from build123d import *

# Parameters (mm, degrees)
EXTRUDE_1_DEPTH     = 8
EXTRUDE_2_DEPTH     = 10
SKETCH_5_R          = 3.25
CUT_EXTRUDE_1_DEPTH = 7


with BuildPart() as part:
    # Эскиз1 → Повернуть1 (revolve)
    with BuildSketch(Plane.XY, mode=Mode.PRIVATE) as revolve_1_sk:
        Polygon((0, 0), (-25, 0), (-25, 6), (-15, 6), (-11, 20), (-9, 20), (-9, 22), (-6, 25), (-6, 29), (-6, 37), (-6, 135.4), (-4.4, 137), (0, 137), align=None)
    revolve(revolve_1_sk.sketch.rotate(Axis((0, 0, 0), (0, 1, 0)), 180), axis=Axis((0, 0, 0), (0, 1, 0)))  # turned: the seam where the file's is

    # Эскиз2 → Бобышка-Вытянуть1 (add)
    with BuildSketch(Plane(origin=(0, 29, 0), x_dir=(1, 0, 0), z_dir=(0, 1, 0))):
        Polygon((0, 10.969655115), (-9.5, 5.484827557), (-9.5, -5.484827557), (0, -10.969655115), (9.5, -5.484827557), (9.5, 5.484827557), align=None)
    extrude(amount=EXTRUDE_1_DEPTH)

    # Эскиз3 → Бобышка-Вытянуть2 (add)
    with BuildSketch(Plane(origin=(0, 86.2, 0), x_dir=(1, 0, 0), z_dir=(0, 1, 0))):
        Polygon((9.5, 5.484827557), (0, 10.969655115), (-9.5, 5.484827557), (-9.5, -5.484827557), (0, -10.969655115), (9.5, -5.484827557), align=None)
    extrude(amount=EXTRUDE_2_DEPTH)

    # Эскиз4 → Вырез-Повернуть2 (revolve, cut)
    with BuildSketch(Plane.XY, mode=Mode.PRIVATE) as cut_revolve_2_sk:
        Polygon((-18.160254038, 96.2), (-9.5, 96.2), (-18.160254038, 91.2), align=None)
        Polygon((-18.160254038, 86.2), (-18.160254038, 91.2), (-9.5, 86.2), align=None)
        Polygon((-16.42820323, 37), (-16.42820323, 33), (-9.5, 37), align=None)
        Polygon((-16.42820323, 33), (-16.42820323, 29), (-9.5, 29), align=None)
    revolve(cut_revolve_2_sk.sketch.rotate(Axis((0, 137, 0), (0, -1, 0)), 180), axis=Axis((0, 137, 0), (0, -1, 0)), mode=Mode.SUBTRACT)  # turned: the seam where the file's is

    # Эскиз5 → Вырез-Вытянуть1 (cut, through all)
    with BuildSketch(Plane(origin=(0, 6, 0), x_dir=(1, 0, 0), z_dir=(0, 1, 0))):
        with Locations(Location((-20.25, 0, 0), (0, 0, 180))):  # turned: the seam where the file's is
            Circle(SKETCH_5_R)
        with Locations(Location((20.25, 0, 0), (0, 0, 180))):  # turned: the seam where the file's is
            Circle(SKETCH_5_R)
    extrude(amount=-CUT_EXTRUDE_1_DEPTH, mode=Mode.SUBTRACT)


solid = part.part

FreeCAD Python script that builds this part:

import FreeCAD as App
import Part
import Sketcher
from FreeCAD import Vector
Q = App.Units.Quantity

doc = App.newDocument("Part")
body = doc.addObject("PartDesign::Body", "Body")

# Sketch on XY plane
sketch1 = body.newObject("Sketcher::SketchObject", "Sketch")
sketch1.AttachmentSupport = (doc.getObject("XY_Plane"), [""])
sketch1.MapMode = "FlatFace"
sketch1.addGeometry([
    Part.LineSegment(Vector(-25, 0, 0), Vector(0, 0, 0)),  # 0
    Part.LineSegment(Vector(0, 0, 0), Vector(0, 137, 0)),  # 1
    Part.LineSegment(Vector(0, 137, 0), Vector(-4.4, 137, 0)),  # 2
    Part.LineSegment(Vector(-4.4, 137, 0), Vector(-6, 135.4, 0)),  # 3
    Part.LineSegment(Vector(-6, 135.4, 0), Vector(-6, 25, 0)),  # 4
    Part.LineSegment(Vector(-6, 25, 0), Vector(-9, 22, 0)),  # 5
    Part.LineSegment(Vector(-9, 22, 0), Vector(-9, 20, 0)),  # 6
    Part.LineSegment(Vector(-9, 20, 0), Vector(-11, 20, 0)),  # 7
    Part.LineSegment(Vector(-11, 20, 0), Vector(-15, 6, 0)),  # 8
    Part.LineSegment(Vector(-15, 6, 0), Vector(-25, 6, 0)),  # 9
    Part.LineSegment(Vector(-25, 6, 0), Vector(-25, 0, 0)),  # 10
], False)
sketch1.addConstraint([
    Sketcher.Constraint("Coincident", 0, 2, 1, 1),
    Sketcher.Constraint("Coincident", 1, 2, 2, 1),
    Sketcher.Constraint("Coincident", 2, 2, 3, 1),
    Sketcher.Constraint("Coincident", 3, 2, 4, 1),
    Sketcher.Constraint("Coincident", 4, 2, 5, 1),
    Sketcher.Constraint("Coincident", 5, 2, 6, 1),
    Sketcher.Constraint("Coincident", 6, 2, 7, 1),
    Sketcher.Constraint("Coincident", 7, 2, 8, 1),
    Sketcher.Constraint("Coincident", 8, 2, 9, 1),
    Sketcher.Constraint("Coincident", 9, 2, 10, 1),
    Sketcher.Constraint("Coincident", 10, 2, 0, 1),
    Sketcher.Constraint("Horizontal", 0),
    Sketcher.Constraint("Vertical", 1),
    Sketcher.Constraint("Horizontal", 2),
    Sketcher.Constraint("Vertical", 4),
    Sketcher.Constraint("Vertical", 6),
    Sketcher.Constraint("Horizontal", 7),
    Sketcher.Constraint("Horizontal", 9),
    Sketcher.Constraint("Vertical", 10),
    Sketcher.Constraint("Coincident", 0, 2, -1, 1),
    Sketcher.Constraint("Parallel", 3, 5),
    Sketcher.Constraint("Equal", 7, 6),
    Sketcher.Constraint("DistanceX", 0, 1, 0, 2, Q("25 mm")),
    Sketcher.Constraint("DistanceX", 7, 2, 7, 1, Q("2 mm")),
    Sketcher.Constraint("DistanceX", 9, 2, 9, 1, Q("10 mm")),
    Sketcher.Constraint("DistanceY", 1, 1, 1, 2, Q("137 mm")),
    Sketcher.Constraint("DistanceY", 10, 2, 10, 1, Q("6 mm")),
    Sketcher.Constraint("Angle", 3, Q("-135 deg")),
    Sketcher.Constraint("DistanceX", 2, 2, 2, 1, Q("4.4 mm")),
    Sketcher.Constraint("DistanceY", 4, 2, 4, 1, Q("110.4 mm")),
    Sketcher.Constraint("DistanceX", 3, 2, -1, 1, Q("6 mm")),
    Sketcher.Constraint("DistanceX", 5, 2, -1, 1, Q("9 mm")),
])
revolution = body.newObject("PartDesign::Revolution", "Revolution")
revolution.Profile = sketch1
revolution.ReferenceAxis = (sketch1, ["V_Axis"])
revolution.Angle = 360

# Sketch on XZ plane
sketch2 = body.newObject("Sketcher::SketchObject", "Sketch001")
sketch2.AttachmentSupport = (doc.getObject("XZ_Plane"), [""])
sketch2.MapMode = "FlatFace"
sketch2.AttachmentOffset = App.Placement(Vector(0, 0, -29), App.Rotation())
sketch2.addGeometry([
    Part.LineSegment(Vector(0, -11, 0), Vector(-10, -5, 0)),  # 0
    Part.LineSegment(Vector(-10, -5, 0), Vector(-10, 5, 0)),  # 1
    Part.LineSegment(Vector(-10, 5, 0), Vector(0, 11, 0)),  # 2
    Part.LineSegment(Vector(0, 11, 0), Vector(10, 5, 0)),  # 3
    Part.LineSegment(Vector(10, 5, 0), Vector(10, -5, 0)),  # 4
    Part.LineSegment(Vector(10, -5, 0), Vector(0, -11, 0)),  # 5
], False)
sketch2.addConstraint([
    Sketcher.Constraint("Coincident", 0, 2, 1, 1),
    Sketcher.Constraint("Coincident", 1, 2, 2, 1),
    Sketcher.Constraint("Coincident", 2, 2, 3, 1),
    Sketcher.Constraint("Coincident", 3, 2, 4, 1),
    Sketcher.Constraint("Coincident", 4, 2, 5, 1),
    Sketcher.Constraint("Coincident", 5, 2, 0, 1),
    Sketcher.Constraint("Vertical", 1),
    Sketcher.Constraint("Vertical", 4),
    Sketcher.Constraint("Symmetric", 0, 2, 3, 2, -1, 1),
    Sketcher.Constraint("Symmetric", 2, 2, 5, 2, -1, 1),
    Sketcher.Constraint("PointOnObject", 2, 2, -2),
    Sketcher.Constraint("Parallel", 2, 5),
    Sketcher.Constraint("Horizontal", 1, 2, 3, 2),
    Sketcher.Constraint("Angle", 0, Q("150 deg")),
    Sketcher.Constraint("DistanceX", 1, 2, 3, 2, Q("19 mm")),
    Sketcher.Constraint("DistanceY", 1, 1, 1, 2, Q("10.969655 mm")),
])
pad1 = body.newObject("PartDesign::Pad", "Pad")
pad1.Profile = sketch2
pad1.Length = 8
pad1.Reversed = True

# Sketch on XZ plane
sketch3 = body.newObject("Sketcher::SketchObject", "Sketch002")
sketch3.AttachmentSupport = (doc.getObject("XZ_Plane"), [""])
sketch3.MapMode = "FlatFace"
sketch3.AttachmentOffset = App.Placement(Vector(0, 0, -86.2), App.Rotation())
sketch3.addGeometry([
    Part.LineSegment(Vector(10, -5, 0), Vector(0, -11, 0)),  # 0
    Part.LineSegment(Vector(0, -11, 0), Vector(-10, -5, 0)),  # 1
    Part.LineSegment(Vector(-10, -5, 0), Vector(-10, 5, 0)),  # 2
    Part.LineSegment(Vector(-10, 5, 0), Vector(0, 11, 0)),  # 3
    Part.LineSegment(Vector(0, 11, 0), Vector(10, 5, 0)),  # 4
    Part.LineSegment(Vector(10, 5, 0), Vector(10, -5, 0)),  # 5
], False)
sketch3.addConstraint([
    Sketcher.Constraint("Coincident", 0, 2, 1, 1),
    Sketcher.Constraint("Coincident", 1, 2, 2, 1),
    Sketcher.Constraint("Coincident", 2, 2, 3, 1),
    Sketcher.Constraint("Coincident", 3, 2, 4, 1),
    Sketcher.Constraint("Coincident", 4, 2, 5, 1),
    Sketcher.Constraint("Coincident", 5, 2, 0, 1),
    Sketcher.Constraint("Vertical", 2),
    Sketcher.Constraint("Vertical", 5),
    Sketcher.Constraint("Symmetric", 0, 2, 3, 2, -1, 1),
    Sketcher.Constraint("Symmetric", 1, 2, 4, 2, -1, 1),
    Sketcher.Constraint("PointOnObject", 0, 2, -2),
    Sketcher.Constraint("Parallel", 0, 3),
    Sketcher.Constraint("Horizontal", 2, 2, 4, 2),
    Sketcher.Constraint("Angle", 0, Q("-150 deg")),
    Sketcher.Constraint("DistanceX", 2, 2, 4, 2, Q("19 mm")),
    Sketcher.Constraint("DistanceY", 2, 1, 2, 2, Q("10.969655 mm")),
])
pad2 = body.newObject("PartDesign::Pad", "Pad001")
pad2.Profile = sketch3
pad2.Length = 10
pad2.Reversed = True

# Sketch on XY plane
sketch4 = body.newObject("Sketcher::SketchObject", "Sketch003")
sketch4.AttachmentSupport = (doc.getObject("XY_Plane"), [""])
sketch4.MapMode = "FlatFace"
sketch4.addGeometry([
    Part.LineSegment(Vector(-9.5, 96.2, 0), Vector(-18.2, 96.2, 0)),  # 0
    Part.LineSegment(Vector(-18.2, 96.2, 0), Vector(-18.2, 91.2, 0)),  # 1
    Part.LineSegment(Vector(-18.2, 91.2, 0), Vector(-9.5, 96.2, 0)),  # 2
    Part.LineSegment(Vector(-18.2, 91.2, 0), Vector(-18.2, 86.2, 0)),  # 3
    Part.LineSegment(Vector(-18.2, 86.2, 0), Vector(-9.5, 86.2, 0)),  # 4
    Part.LineSegment(Vector(-9.5, 86.2, 0), Vector(-18.2, 91.2, 0)),  # 5
    Part.LineSegment(Vector(-16.4, 37, 0), Vector(-16.4, 33, 0)),  # 6
    Part.LineSegment(Vector(-16.4, 33, 0), Vector(-9.5, 37, 0)),  # 7
    Part.LineSegment(Vector(-9.5, 37, 0), Vector(-16.4, 37, 0)),  # 8
    Part.LineSegment(Vector(-16.4, 33, 0), Vector(-16.4, 29, 0)),  # 9
    Part.LineSegment(Vector(-16.4, 29, 0), Vector(-9.5, 29, 0)),  # 10
    Part.LineSegment(Vector(-9.5, 29, 0), Vector(-16.4, 33, 0)),  # 11
], False)
sketch4.addConstraint([
    Sketcher.Constraint("Coincident", 0, 2, 1, 1),
    Sketcher.Constraint("Coincident", 1, 2, 2, 1),
    Sketcher.Constraint("Coincident", 2, 2, 0, 1),
    Sketcher.Constraint("Coincident", 3, 2, 4, 1),
    Sketcher.Constraint("Coincident", 4, 2, 5, 1),
    Sketcher.Constraint("Coincident", 5, 2, 3, 1),
    Sketcher.Constraint("Coincident", 6, 2, 7, 1),
    Sketcher.Constraint("Coincident", 7, 2, 8, 1),
    Sketcher.Constraint("Coincident", 8, 2, 6, 1),
    Sketcher.Constraint("Coincident", 9, 2, 10, 1),
    Sketcher.Constraint("Coincident", 10, 2, 11, 1),
    Sketcher.Constraint("Coincident", 11, 2, 9, 1),
    Sketcher.Constraint("Horizontal", 0),
    Sketcher.Constraint("Vertical", 1),
    Sketcher.Constraint("Vertical", 3),
    Sketcher.Constraint("Horizontal", 4),
    Sketcher.Constraint("Vertical", 6),
    Sketcher.Constraint("Horizontal", 8),
    Sketcher.Constraint("Vertical", 9),
    Sketcher.Constraint("Horizontal", 10),
    Sketcher.Constraint("Coincident", 5, 2, 1, 2),
    Sketcher.Constraint("Coincident", 11, 2, 6, 2),
    Sketcher.Constraint("Parallel", 2, 7),
    Sketcher.Constraint("Parallel", 5, 11),
    Sketcher.Constraint("Vertical", 2, 2, 4, 2),
    Sketcher.Constraint("Vertical", 4, 2, 7, 2),
    Sketcher.Constraint("Vertical", 7, 2, 10, 2),
    Sketcher.Constraint("Equal", 1, 3),
    Sketcher.Constraint("DistanceY", 1, 2, 1, 1, Q("5 mm")),
    Sketcher.Constraint("DistanceY", 6, 2, 6, 1, Q("4 mm")),
    Sketcher.Constraint("Angle", 2, Q("30 deg")),
    Sketcher.Constraint("DistanceY", -1, 1, 6, 2, Q("33 mm")),
    Sketcher.Constraint("DistanceY", -1, 1, 0, 2, Q("96.2 mm")),
    Sketcher.Constraint("DistanceX", 2, 2, -1, 1, Q("9.5 mm")),
])
groove = body.newObject("PartDesign::Groove", "Groove")
groove.Profile = sketch4
groove.ReferenceAxis = (sketch4, ["V_Axis"])
groove.Angle = 360

# Sketch on XZ plane
sketch5 = body.newObject("Sketcher::SketchObject", "Sketch004")
sketch5.AttachmentSupport = (doc.getObject("XZ_Plane"), [""])
sketch5.MapMode = "FlatFace"
sketch5.AttachmentOffset = App.Placement(Vector(0, 0, -6), App.Rotation())
sketch5.addGeometry([
    Part.Circle(Vector(-20.2, 0, 0), Vector(0, 0, 1), 3.2),
    Part.Circle(Vector(20.2, 0, 0), Vector(0, 0, 1), 3.2),
], False)
sketch5.addConstraint([
    Sketcher.Constraint("Equal", 0, 1),
    Sketcher.Constraint("Symmetric", 0, 3, 1, 3, -1, 1),
    Sketcher.Constraint("PointOnObject", 0, 3, -1),
    Sketcher.Constraint("Diameter", 0, Q("6.5 mm")),
    Sketcher.Constraint("DistanceX", 0, 3, 1, 3, Q("40.5 mm")),
])
pocket1 = body.newObject("PartDesign::Pocket", "Pocket")
pocket1.Profile = sketch5
pocket1.Type = "ThroughAll"
pocket1.Reversed = True

doc.recompute()
